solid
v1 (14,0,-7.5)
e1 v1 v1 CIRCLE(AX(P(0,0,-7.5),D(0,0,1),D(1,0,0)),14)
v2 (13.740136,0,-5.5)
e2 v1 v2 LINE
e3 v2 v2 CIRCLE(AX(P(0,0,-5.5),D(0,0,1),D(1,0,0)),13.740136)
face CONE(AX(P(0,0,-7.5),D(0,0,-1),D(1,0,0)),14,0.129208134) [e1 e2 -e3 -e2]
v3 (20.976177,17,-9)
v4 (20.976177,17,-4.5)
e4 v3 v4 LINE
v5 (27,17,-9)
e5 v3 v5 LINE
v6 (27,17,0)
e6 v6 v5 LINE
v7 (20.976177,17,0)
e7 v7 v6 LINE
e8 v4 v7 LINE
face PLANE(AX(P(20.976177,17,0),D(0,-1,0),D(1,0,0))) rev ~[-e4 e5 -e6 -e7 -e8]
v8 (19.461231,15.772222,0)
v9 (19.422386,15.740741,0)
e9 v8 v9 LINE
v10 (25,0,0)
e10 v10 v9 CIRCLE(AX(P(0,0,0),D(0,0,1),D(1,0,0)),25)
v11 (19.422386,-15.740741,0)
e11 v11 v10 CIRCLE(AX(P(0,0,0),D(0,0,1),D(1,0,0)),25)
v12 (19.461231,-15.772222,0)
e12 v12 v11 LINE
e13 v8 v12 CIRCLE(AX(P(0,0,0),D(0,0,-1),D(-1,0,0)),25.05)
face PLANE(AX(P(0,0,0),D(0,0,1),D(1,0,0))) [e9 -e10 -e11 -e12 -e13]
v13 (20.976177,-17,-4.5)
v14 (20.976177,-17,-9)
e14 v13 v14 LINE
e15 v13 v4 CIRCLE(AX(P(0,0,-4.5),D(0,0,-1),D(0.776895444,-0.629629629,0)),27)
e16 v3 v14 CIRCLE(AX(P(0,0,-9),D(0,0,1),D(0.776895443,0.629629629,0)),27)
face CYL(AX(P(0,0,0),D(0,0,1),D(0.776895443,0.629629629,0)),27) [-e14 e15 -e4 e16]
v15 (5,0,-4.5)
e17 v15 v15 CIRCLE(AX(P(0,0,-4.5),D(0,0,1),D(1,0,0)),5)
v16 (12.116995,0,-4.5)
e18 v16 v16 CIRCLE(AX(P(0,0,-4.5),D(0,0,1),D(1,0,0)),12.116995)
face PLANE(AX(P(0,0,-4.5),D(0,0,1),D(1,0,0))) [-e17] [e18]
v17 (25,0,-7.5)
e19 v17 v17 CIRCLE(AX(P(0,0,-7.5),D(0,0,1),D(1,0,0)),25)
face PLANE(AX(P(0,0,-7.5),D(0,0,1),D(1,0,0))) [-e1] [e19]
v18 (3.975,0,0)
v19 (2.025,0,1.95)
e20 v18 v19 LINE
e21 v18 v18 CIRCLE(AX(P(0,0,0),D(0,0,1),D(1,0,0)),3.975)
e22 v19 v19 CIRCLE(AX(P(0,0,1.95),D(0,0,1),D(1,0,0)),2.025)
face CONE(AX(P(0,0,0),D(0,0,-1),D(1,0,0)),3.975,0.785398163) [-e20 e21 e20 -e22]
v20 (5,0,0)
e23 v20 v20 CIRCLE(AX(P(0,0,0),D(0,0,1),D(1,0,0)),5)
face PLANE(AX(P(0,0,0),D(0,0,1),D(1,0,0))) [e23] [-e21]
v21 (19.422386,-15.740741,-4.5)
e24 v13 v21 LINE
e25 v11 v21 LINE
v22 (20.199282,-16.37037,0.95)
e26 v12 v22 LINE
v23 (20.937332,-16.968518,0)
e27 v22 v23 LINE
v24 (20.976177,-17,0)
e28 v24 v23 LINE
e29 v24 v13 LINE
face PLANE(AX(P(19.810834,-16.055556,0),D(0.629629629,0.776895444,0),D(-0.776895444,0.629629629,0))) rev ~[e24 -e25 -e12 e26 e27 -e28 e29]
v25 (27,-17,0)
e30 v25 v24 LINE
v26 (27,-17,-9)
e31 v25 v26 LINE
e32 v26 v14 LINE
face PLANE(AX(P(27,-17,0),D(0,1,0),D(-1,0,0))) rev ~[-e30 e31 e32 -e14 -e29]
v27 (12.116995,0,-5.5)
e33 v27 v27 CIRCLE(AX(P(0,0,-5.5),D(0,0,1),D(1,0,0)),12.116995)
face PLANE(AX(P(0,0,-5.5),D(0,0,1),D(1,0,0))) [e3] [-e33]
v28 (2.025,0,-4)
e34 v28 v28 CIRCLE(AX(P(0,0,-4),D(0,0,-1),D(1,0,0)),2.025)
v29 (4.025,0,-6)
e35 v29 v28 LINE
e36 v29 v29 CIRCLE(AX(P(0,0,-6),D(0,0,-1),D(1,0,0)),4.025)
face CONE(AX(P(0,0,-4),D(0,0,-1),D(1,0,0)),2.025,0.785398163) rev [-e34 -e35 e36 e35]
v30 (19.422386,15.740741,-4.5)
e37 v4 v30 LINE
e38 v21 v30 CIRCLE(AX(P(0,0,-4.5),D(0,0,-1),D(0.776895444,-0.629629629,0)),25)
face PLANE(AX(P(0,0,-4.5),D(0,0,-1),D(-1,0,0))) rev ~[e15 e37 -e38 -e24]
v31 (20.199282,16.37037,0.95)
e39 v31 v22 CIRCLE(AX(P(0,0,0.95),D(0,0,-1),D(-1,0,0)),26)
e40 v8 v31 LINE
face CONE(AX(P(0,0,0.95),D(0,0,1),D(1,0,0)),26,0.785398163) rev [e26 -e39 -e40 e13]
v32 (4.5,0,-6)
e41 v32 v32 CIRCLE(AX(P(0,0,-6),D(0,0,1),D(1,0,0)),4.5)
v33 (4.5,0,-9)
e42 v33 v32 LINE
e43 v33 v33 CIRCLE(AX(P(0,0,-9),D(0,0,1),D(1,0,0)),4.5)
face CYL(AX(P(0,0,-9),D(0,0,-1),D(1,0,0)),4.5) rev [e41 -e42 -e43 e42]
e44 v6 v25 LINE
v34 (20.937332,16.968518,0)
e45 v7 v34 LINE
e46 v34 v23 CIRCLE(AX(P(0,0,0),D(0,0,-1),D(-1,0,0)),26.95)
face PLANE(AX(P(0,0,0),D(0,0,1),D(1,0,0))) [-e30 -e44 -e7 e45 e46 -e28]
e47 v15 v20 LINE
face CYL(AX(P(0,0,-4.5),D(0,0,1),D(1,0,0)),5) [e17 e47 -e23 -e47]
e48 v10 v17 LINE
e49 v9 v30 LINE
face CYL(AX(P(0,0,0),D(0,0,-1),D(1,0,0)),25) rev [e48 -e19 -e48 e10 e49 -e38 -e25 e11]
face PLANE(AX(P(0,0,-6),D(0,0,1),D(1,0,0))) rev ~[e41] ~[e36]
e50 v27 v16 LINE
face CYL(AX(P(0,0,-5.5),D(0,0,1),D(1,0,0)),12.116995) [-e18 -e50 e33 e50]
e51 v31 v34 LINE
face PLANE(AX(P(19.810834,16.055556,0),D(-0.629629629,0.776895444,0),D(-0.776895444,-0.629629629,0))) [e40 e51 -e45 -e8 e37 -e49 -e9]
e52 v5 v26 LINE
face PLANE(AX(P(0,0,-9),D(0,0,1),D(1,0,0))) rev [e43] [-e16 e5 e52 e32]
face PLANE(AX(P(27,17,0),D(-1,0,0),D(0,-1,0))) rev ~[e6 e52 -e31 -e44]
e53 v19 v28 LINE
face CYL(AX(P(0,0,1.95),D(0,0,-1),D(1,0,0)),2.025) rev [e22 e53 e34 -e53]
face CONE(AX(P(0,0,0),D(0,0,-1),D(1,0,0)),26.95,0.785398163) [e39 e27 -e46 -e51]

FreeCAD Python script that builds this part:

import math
import FreeCAD as App
import Part
import Sketcher

V = App.Vector
Q = App.Units.Quantity


def edges_at(feature, points):
    """Names of the edges that pass closest to the given points."""
    edges = feature.Shape.Edges
    near = lambda p: min(range(len(edges)), key=lambda i: edges[i].distToShape(Part.Vertex(*p))[0])
    return sorted({f"Edge{near(p) + 1}" for p in points})

doc = App.newDocument("Part")
body = doc.addObject("PartDesign::Body", "Body")

# Sketch on XZ plane
sketch1 = body.newObject("Sketcher::SketchObject", "Sketch")
sketch1.AttachmentSupport = (doc.getObject("XZ_Plane"), [""])
sketch1.MapMode = "FlatFace"
sketch1.addGeometry(Part.LineSegment(V(70.71, 0, 0), V(26.95, 0, 0)), False)
sketch1.addGeometry(Part.LineSegment(V(26.95, 0, 0), V(26, 0.95, 0)), False)
sketch1.addGeometry(Part.LineSegment(V(26, 0.95, 0), V(25.05, 0, 0)), False)
sketch1.addGeometry(Part.LineSegment(V(25.05, 0, 0), V(25, 0, 0)), False)
sketch1.addGeometry(Part.LineSegment(V(25, 0, 0), V(25, -7.5, 0)), False)
sketch1.addGeometry(Part.LineSegment(V(25, -7.5, 0), V(14, -7.5, 0)), False)
sketch1.addGeometry(Part.LineSegment(V(14, -7.5, 0), V(13.74, -5.5, 0)), False)
sketch1.addGeometry(Part.LineSegment(V(13.74, -5.5, 0), V(12.12, -5.5, 0)), False)
sketch1.addGeometry(Part.LineSegment(V(12.12, -5.5, 0), V(12.12, -4.5, 0)), False)
sketch1.addGeometry(Part.LineSegment(V(12.12, -4.5, 0), V(5, -4.5, 0)), False)
sketch1.addGeometry(Part.LineSegment(V(5, -4.5, 0), V(5, 0, 0)), False)
sketch1.addGeometry(Part.LineSegment(V(5, 0, 0), V(3.98, 0, 0)), False)
sketch1.addGeometry(Part.LineSegment(V(3.98, 0, 0), V(2.02, 1.95, 0)), False)
sketch1.addGeometry(Part.LineSegment(V(2.02, 1.95, 0), V(2.02, -9, 0)), False)
sketch1.addGeometry(Part.LineSegment(V(2.02, -9, 0), V(70.71, -9, 0)), False)
sketch1.addGeometry(Part.LineSegment(V(70.71, -9, 0), V(70.71, 0, 0)), False)
sketch1.addConstraint(Sketcher.Constraint("Coincident", 0, 2, 1, 1))
sketch1.addConstraint(Sketcher.Constraint("Coincident", 1, 2, 2, 1))
sketch1.addConstraint(Sketcher.Constraint("Coincident", 2, 2, 3, 1))
sketch1.addConstraint(Sketcher.Constraint("Coincident", 3, 2, 4, 1))
sketch1.addConstraint(Sketcher.Constraint("Coincident", 4, 2, 5, 1))
sketch1.addConstraint(Sketcher.Constraint("Coincident", 5, 2, 6, 1))
sketch1.addConstraint(Sketcher.Constraint("Coincident", 6, 2, 7, 1))
sketch1.addConstraint(Sketcher.Constraint("Coincident", 7, 2, 8, 1))
sketch1.addConstraint(Sketcher.Constraint("Coincident", 8, 2, 9, 1))
sketch1.addConstraint(Sketcher.Constraint("Coincident", 9, 2, 10, 1))
sketch1.addConstraint(Sketcher.Constraint("Coincident", 10, 2, 11, 1))
sketch1.addConstraint(Sketcher.Constraint("Coincident", 11, 2, 12, 1))
sketch1.addConstraint(Sketcher.Constraint("Coincident", 12, 2, 13, 1))
sketch1.addConstraint(Sketcher.Constraint("Coincident", 13, 2, 14, 1))
sketch1.addConstraint(Sketcher.Constraint("Coincident", 14, 2, 15, 1))
sketch1.addConstraint(Sketcher.Constraint("Coincident", 15, 2, 0, 1))
sketch1.addConstraint(Sketcher.Constraint("Horizontal", 0))
sketch1.addConstraint(Sketcher.Constraint("Horizontal", 3))
sketch1.addConstraint(Sketcher.Constraint("Vertical", 4))
sketch1.addConstraint(Sketcher.Constraint("Horizontal", 5))
sketch1.addConstraint(Sketcher.Constraint("Horizontal", 7))
sketch1.addConstraint(Sketcher.Constraint("Vertical", 8))
sketch1.addConstraint(Sketcher.Constraint("Horizontal", 9))
sketch1.addConstraint(Sketcher.Constraint("Vertical", 10))
sketch1.addConstraint(Sketcher.Constraint("Horizontal", 11))
sketch1.addConstraint(Sketcher.Constraint("Vertical", 13))
sketch1.addConstraint(Sketcher.Constraint("Horizontal", 14))
sketch1.addConstraint(Sketcher.Constraint("Vertical", 15))
sketch1.addConstraint(Sketcher.Constraint("PointOnObject", 0, 2, -1))
sketch1.addConstraint(Sketcher.Constraint("PointOnObject", 2, 2, -1))
sketch1.addConstraint(Sketcher.Constraint("PointOnObject", 10, 2, -1))
sketch1.addConstraint(Sketcher.Constraint("Perpendicular", 1, 2))
sketch1.addConstraint(Sketcher.Constraint("Perpendicular", 2, 12))
sketch1.addConstraint(Sketcher.Constraint("Equal", 1, 2))
sketch1.addConstraint(Sketcher.Constraint("DistanceX", 5, 2, 5, 1, 11.0))
sketch1.addConstraint(Sketcher.Constraint("DistanceY", 8, 1, 8, 2, 1.0))
sketch1.addConstraint(Sketcher.Constraint("DistanceY", 15, 1, 15, 2, 9.0))
sketch1.addConstraint(Sketcher.Constraint("DistanceY", 4, 2, 4, 1, 7.5))
sketch1.addConstraint(Sketcher.Constraint("DistanceY", 10, 1, 10, 2, 4.5))
sketch1.addConstraint(Sketcher.Constraint("DistanceX", -1, 1, 1, 2, 26.0))
sketch1.addConstraint(Sketcher.Constraint("DistanceX", -1, 1, 3, 2, 25.0))
sketch1.addConstraint(Sketcher.Constraint("DistanceX", -1, 1, 9, 2, 5.0))
sketch1.addConstraint(Sketcher.Constraint("DistanceX", 3, 2, 3, 1, 0.05))
sketch1.addConstraint(Sketcher.Constraint("DistanceY", 13, 2, 13, 1, 10.95))
sketch1.addConstraint(Sketcher.Constraint("DistanceX", 11, 2, 11, 1, 1.025))
sketch1.addConstraint(Sketcher.Constraint("DistanceX", 7, 2, 7, 1, 1.623141))
sketch1.addConstraint(Sketcher.Constraint("Distance", 6, 2.016812))
sketch1.addConstraint(Sketcher.Constraint("DistanceX", 0, 2, 0, 1, 43.760678))
revolution = body.newObject("PartDesign::Revolution", "Revolution")
revolution.Profile = sketch1
revolution.ReferenceAxis = (sketch1, ["V_Axis"])
revolution.Angle = 360

# Sketch on XZ plane
sketch2 = body.newObject("Sketcher::SketchObject", "Sketch001")
sketch2.AttachmentSupport = (doc.getObject("XZ_Plane"), [""])
sketch2.MapMode = "FlatFace"
sketch2.addGeometry(Part.LineSegment(V(33.6, 1.9, 0), V(31.6, 1.9, 0)), False)
sketch2.addGeometry(Part.LineSegment(V(31.6, 1.9, 0), V(31.6, 0, 0)), False)
sketch2.addGeometry(Part.LineSegment(V(31.6, 0, 0), V(35.5, 0, 0)), False)
sketch2.addGeometry(Part.LineSegment(V(35.5, 0, 0), V(33.6, 1.9, 0)), False)
sketch2.addGeometry(Part.LineSegment(V(31.6, 1.9, 0), V(31.6, 0, 0)), True)  # axis
sketch2.addConstraint(Sketcher.Constraint("Coincident", 0, 2, 1, 1))
sketch2.addConstraint(Sketcher.Constraint("Coincident", 1, 2, 2, 1))
sketch2.addConstraint(Sketcher.Constraint("Coincident", 2, 2, 3, 1))
sketch2.addConstraint(Sketcher.Constraint("Coincident", 3, 2, 0, 1))
sketch2.addConstraint(Sketcher.Constraint("Horizontal", 0))
sketch2.addConstraint(Sketcher.Constraint("Vertical", 1))
sketch2.addConstraint(Sketcher.Constraint("Horizontal", 2))
sketch2.addConstraint(Sketcher.Constraint("Vertical", 4))
sketch2.addConstraint(Sketcher.Constraint("Coincident", 4, 1, 0, 2))
sketch2.addConstraint(Sketcher.Constraint("PointOnObject", 1, 2, -1))
sketch2.addConstraint(Sketcher.Constraint("PointOnObject", 4, 2, -1))
sketch2.addConstraint(Sketcher.Constraint("DistanceX", 0, 2, 0, 1, 2.0))
sketch2.addConstraint(Sketcher.Constraint("Angle", 3, Q("135 deg")))
sketch2.addConstraint(Sketcher.Constraint("DistanceX", 2, 1, 2, 2, 3.95))
sketch2.addConstraint(Sketcher.Constraint("DistanceX", -1, 1, 0, 2, 31.6))
revolution2 = body.newObject("PartDesign::Revolution", "Revolution001")
revolution2.Profile = sketch2
revolution2.ReferenceAxis = (sketch2, ["Axis0"])
revolution2.Angle = 360

# Sketch on XZ plane
sketch3 = body.newObject("Sketcher::SketchObject", "Sketch002")
sketch3.AttachmentSupport = (doc.getObject("XZ_Plane"), [""])
sketch3.MapMode = "FlatFace"
sketch3.addGeometry(Part.LineSegment(V(42, 1.9, 0), V(42, 0, 0)), False)
sketch3.addGeometry(Part.LineSegment(V(42, 0, 0), V(46, 0, 0)), False)
sketch3.addGeometry(Part.LineSegment(V(46, 0, 0), V(44, 1.9, 0)), False)
sketch3.addGeometry(Part.LineSegment(V(44, 1.9, 0), V(42, 1.9, 0)), False)
sketch3.addGeometry(Part.LineSegment(V(42, 1.9, 0), V(42, 0, 0)), True)  # axis
sketch3.addConstraint(Sketcher.Constraint("Coincident", 0, 2, 1, 1))
sketch3.addConstraint(Sketcher.Constraint("Coincident", 1, 2, 2, 1))
sketch3.addConstraint(Sketcher.Constraint("Coincident", 2, 2, 3, 1))
sketch3.addConstraint(Sketcher.Constraint("Coincident", 3, 2, 0, 1))
sketch3.addConstraint(Sketcher.Constraint("Vertical", 0))
sketch3.addConstraint(Sketcher.Constraint("Horizontal", 1))
sketch3.addConstraint(Sketcher.Constraint("Horizontal", 3))
sketch3.addConstraint(Sketcher.Constraint("Vertical", 4))
sketch3.addConstraint(Sketcher.Constraint("Coincident", 4, 1, 3, 2))
sketch3.addConstraint(Sketcher.Constraint("PointOnObject", 0, 2, -1))
sketch3.addConstraint(Sketcher.Constraint("PointOnObject", 4, 2, -1))
sketch3.addConstraint(Sketcher.Constraint("DistanceX", 3, 2, 3, 1, 2.0))
sketch3.addConstraint(Sketcher.Constraint("Angle", 2, Q("135 deg")))
sketch3.addConstraint(Sketcher.Constraint("DistanceX", -1, 1, 0, 2, 42.0))
sketch3.addConstraint(Sketcher.Constraint("DistanceX", 1, 1, 1, 2, 3.95))
revolution3 = body.newObject("PartDesign::Revolution", "Revolution002")
revolution3.Profile = sketch3
revolution3.ReferenceAxis = (sketch3, ["Axis0"])
revolution3.Angle = 360

# Sketch on XY plane
sketch4 = body.newObject("Sketcher::SketchObject", "Sketch003")
sketch4.AttachmentSupport = (doc.getObject("XY_Plane"), [""])
sketch4.MapMode = "FlatFace"
sketch4.addGeometry(Part.Circle(V(0, 0, 0), V(0, 0, 1), 71), False)
sketch4.addGeometry(Part.ArcOfCircle(Part.Circle(V(0, 0, 0), V(0, 0, 1), 27), math.radians(39), math.radians(321)), False)
sketch4.addGeometry(Part.LineSegment(V(21, 17, 0), V(27, 17, 0)), False)
sketch4.addGeometry(Part.LineSegment(V(27, 17, 0), V(27, -17, 0)), False)
sketch4.addGeometry(Part.LineSegment(V(27, -17, 0), V(21, -17, 0)), False)
sketch4.addConstraint(Sketcher.Constraint("Coincident", 1, 1, 2, 1))
sketch4.addConstraint(Sketcher.Constraint("Coincident", 2, 2, 3, 1))
sketch4.addConstraint(Sketcher.Constraint("Coincident", 3, 2, 4, 1))
sketch4.addConstraint(Sketcher.Constraint("Coincident", 4, 2, 1, 2))
sketch4.addConstraint(Sketcher.Constraint("Horizontal", 2))
sketch4.addConstraint(Sketcher.Constraint("Vertical", 3))
sketch4.addConstraint(Sketcher.Constraint("Horizontal", 4))
sketch4.addConstraint(Sketcher.Constraint("Coincident", 0, 3, -1, 1))
sketch4.addConstraint(Sketcher.Constraint("Coincident", 1, 3, -1, 1))
sketch4.addConstraint(Sketcher.Constraint("Vertical", 1, 1, 4, 2))
sketch4.addConstraint(Sketcher.Constraint("Radius", 1, 27.0))
sketch4.addConstraint(Sketcher.Constraint("DistanceY", 3, 2, 3, 1, 34.0))
sketch4.addConstraint(Sketcher.Constraint("DistanceX", -1, 1, 2, 2, 27.0))
sketch4.addConstraint(Sketcher.Constraint("Diameter", 0, 141.421356))
pocket1 = body.newObject("PartDesign::Pocket", "Pocket")
pocket1.Profile = sketch4
pocket1.Length = 18
pocket1.Midplane = True

# Sketch on XY plane
sketch5 = body.newObject("Sketcher::SketchObject", "Sketch004")
sketch5.AttachmentSupport = (doc.getObject("XY_Plane"), [""])
sketch5.MapMode = "FlatFace"
sketch5.AttachmentOffset = App.Placement(V(0, 0, -9), App.Rotation())
sketch5.addGeometry(Part.Circle(V(0, 0, 0), V(0, 0, 1), 4.5), False)
sketch5.addConstraint(Sketcher.Constraint("Coincident", 0, 3, -1, 1))
sketch5.addConstraint(Sketcher.Constraint("Diameter", 0, 9.0))
pocket2 = body.newObject("PartDesign::Pocket", "Pocket001")
pocket2.Profile = sketch5
pocket2.Length = 3
pocket2.Reversed = True
doc.recompute()

chamfer = body.newObject("PartDesign::Chamfer", "Chamfer")
chamfer.Base = (pocket2, edges_at(pocket2, [(-2.025, 0, -6)]))
chamfer.Size = 2

# Sketch on XZ plane
sketch6 = body.newObject("Sketcher::SketchObject", "Sketch005")
sketch6.AttachmentSupport = (doc.getObject("XZ_Plane"), [""])
sketch6.MapMode = "FlatFace"
sketch6.addGeometry(Part.LineSegment(V(-27, 4.5, 0), V(-27, -4.5, 0)), False)
sketch6.addGeometry(Part.LineSegment(V(-27, -4.5, 0), V(-24, -4.5, 0)), False)
sketch6.addGeometry(Part.LineSegment(V(-24, -4.5, 0), V(-24, 4.5, 0)), False)
sketch6.addGeometry(Part.LineSegment(V(-24, 4.5, 0), V(-27, 4.5, 0)), False)
sketch6.addConstraint(Sketcher.Constraint("Coincident", 0, 2, 1, 1))
sketch6.addConstraint(Sketcher.Constraint("Coincident", 1, 2, 2, 1))
sketch6.addConstraint(Sketcher.Constraint("Coincident", 2, 2, 3, 1))
sketch6.addConstraint(Sketcher.Constraint("Coincident", 3, 2, 0, 1))
sketch6.addConstraint(Sketcher.Constraint("Vertical", 0))
sketch6.addConstraint(Sketcher.Constraint("Horizontal", 1))
sketch6.addConstraint(Sketcher.Constraint("Vertical", 2))
sketch6.addConstraint(Sketcher.Constraint("Horizontal", 3))
sketch6.addConstraint(Sketcher.Constraint("DistanceX", 1, 1, 1, 2, 3.0))
sketch6.addConstraint(Sketcher.Constraint("DistanceY", 0, 2, 0, 1, 9.0))
sketch6.addConstraint(Sketcher.Constraint("DistanceX", 0, 2, -1, 1, 27.0))
sketch6.addConstraint(Sketcher.Constraint("DistanceY", 0, 2, -1, 1, 4.5))
groove = body.newObject("PartDesign::Groove", "Groove")
groove.Profile = sketch6
groove.ReferenceAxis = (sketch6, ["V_Axis"])
groove.Angle = 140.977197

# Sketch on XZ plane
sketch7 = body.newObject("Sketcher::SketchObject", "Sketch006")
sketch7.AttachmentSupport = (doc.getObject("XZ_Plane"), [""])
sketch7.MapMode = "FlatFace"
sketch7.addGeometry(Part.LineSegment(V(-27, 4.5, 0), V(-27, -4.5, 0)), False)
sketch7.addGeometry(Part.LineSegment(V(-27, -4.5, 0), V(-24, -4.5, 0)), False)
sketch7.addGeometry(Part.LineSegment(V(-24, -4.5, 0), V(-24, 4.5, 0)), False)
sketch7.addGeometry(Part.LineSegment(V(-24, 4.5, 0), V(-27, 4.5, 0)), False)
sketch7.addConstraint(Sketcher.Constraint("Coincident", 0, 2, 1, 1))
sketch7.addConstraint(Sketcher.Constraint("Coincident", 1, 2, 2, 1))
sketch7.addConstraint(Sketcher.Constraint("Coincident", 2, 2, 3, 1))
sketch7.addConstraint(Sketcher.Constraint("Coincident", 3, 2, 0, 1))
sketch7.addConstraint(Sketcher.Constraint("Vertical", 0))
sketch7.addConstraint(Sketcher.Constraint("Horizontal", 1))
sketch7.addConstraint(Sketcher.Constraint("Vertical", 2))
sketch7.addConstraint(Sketcher.Constraint("Horizontal", 3))
sketch7.addConstraint(Sketcher.Constraint("DistanceX", 1, 1, 1, 2, 3.0))
sketch7.addConstraint(Sketcher.Constraint("DistanceY", 0, 2, 0, 1, 9.0))
sketch7.addConstraint(Sketcher.Constraint("DistanceX", 0, 2, -1, 1, 27.0))
sketch7.addConstraint(Sketcher.Constraint("DistanceY", 0, 2, -1, 1, 4.5))
groove2 = body.newObject("PartDesign::Groove", "Groove001")
groove2.Profile = sketch7
groove2.ReferenceAxis = (sketch7, ["V_Axis"])
groove2.Angle = 140.977197
groove2.Reversed = True

# Sketch on XZ plane
sketch8 = body.newObject("Sketcher::SketchObject", "Sketch007")
sketch8.AttachmentSupport = (doc.getObject("XZ_Plane"), [""])
sketch8.MapMode = "FlatFace"
sketch8.addGeometry(Part.LineSegment(V(44, -7, 0), V(42, -7, 0)), False)
sketch8.addGeometry(Part.LineSegment(V(42, -7, 0), V(42, -9, 0)), False)
sketch8.addGeometry(Part.LineSegment(V(42, -9, 0), V(46, -9, 0)), False)
sketch8.addGeometry(Part.LineSegment(V(46, -9, 0), V(44, -7, 0)), False)
sketch8.addGeometry(Part.LineSegment(V(42, -7, 0), V(42, -9, 0)), True)  # axis
sketch8.addConstraint(Sketcher.Constraint("Coincident", 0, 2, 1, 1))
sketch8.addConstraint(Sketcher.Constraint("Coincident", 1, 2, 2, 1))
sketch8.addConstraint(Sketcher.Constraint("Coincident", 2, 2, 3, 1))
sketch8.addConstraint(Sketcher.Constraint("Coincident", 3, 2, 0, 1))
sketch8.addConstraint(Sketcher.Constraint("Horizontal", 0))
sketch8.addConstraint(Sketcher.Constraint("Vertical", 1))
sketch8.addConstraint(Sketcher.Constraint("Horizontal", 2))
sketch8.addConstraint(Sketcher.Constraint("Vertical", 4))
sketch8.addConstraint(Sketcher.Constraint("Coincident", 4, 1, 0, 2))
sketch8.addConstraint(Sketcher.Constraint("Horizontal", 2, 2, 4, 2))
sketch8.addConstraint(Sketcher.Constraint("Equal", 0, 1))
sketch8.addConstraint(Sketcher.Constraint("DistanceX", 0, 2, 0, 1, 2.0))
sketch8.addConstraint(Sketcher.Constraint("DistanceX", 2, 1, 2, 2, 4.0))
sketch8.addConstraint(Sketcher.Constraint("DistanceX", -1, 1, 0, 2, 42.0))
sketch8.addConstraint(Sketcher.Constraint("DistanceY", 0, 2, -1, 1, 7.0))
groove3 = body.newObject("PartDesign::Groove", "Groove002")
groove3.Profile = sketch8
groove3.ReferenceAxis = (sketch8, ["Axis0"])
groove3.Angle = 360

# Sketch on XZ plane
sketch9 = body.newObject("Sketcher::SketchObject", "Sketch008")
sketch9.AttachmentSupport = (doc.getObject("XZ_Plane"), [""])
sketch9.MapMode = "FlatFace"
sketch9.addGeometry(Part.LineSegment(V(33.6, -7, 0), V(31.6, -7, 0)), False)
sketch9.addGeometry(Part.LineSegment(V(31.6, -7, 0), V(31.6, -9, 0)), False)
sketch9.addGeometry(Part.LineSegment(V(31.6, -9, 0), V(35.6, -9, 0)), False)
sketch9.addGeometry(Part.LineSegment(V(35.6, -9, 0), V(33.6, -7, 0)), False)
sketch9.addGeometry(Part.LineSegment(V(31.6, -7, 0), V(31.6, -9, 0)), True)  # axis
sketch9.addConstraint(Sketcher.Constraint("Coincident", 0, 2, 1, 1))
sketch9.addConstraint(Sketcher.Constraint("Coincident", 1, 2, 2, 1))
sketch9.addConstraint(Sketcher.Constraint("Coincident", 2, 2, 3, 1))
sketch9.addConstraint(Sketcher.Constraint("Coincident", 3, 2, 0, 1))
sketch9.addConstraint(Sketcher.Constraint("Horizontal", 0))
sketch9.addConstraint(Sketcher.Constraint("Vertical", 1))
sketch9.addConstraint(Sketcher.Constraint("Horizontal", 2))
sketch9.addConstraint(Sketcher.Constraint("Vertical", 4))
sketch9.addConstraint(Sketcher.Constraint("Coincident", 4, 1, 0, 2))
sketch9.addConstraint(Sketcher.Constraint("Horizontal", 2, 2, 4, 2))
sketch9.addConstraint(Sketcher.Constraint("Equal", 0, 1))
sketch9.addConstraint(Sketcher.Constraint("DistanceX", 0, 2, 0, 1, 2.0))
sketch9.addConstraint(Sketcher.Constraint("DistanceX", 2, 1, 2, 2, 4.0))
sketch9.addConstraint(Sketcher.Constraint("DistanceY", 0, 2, -1, 1, 7.0))
sketch9.addConstraint(Sketcher.Constraint("DistanceX", -1, 1, 0, 2, 31.6))
groove4 = body.newObject("PartDesign::Groove", "Groove003")
groove4.Profile = sketch9
groove4.ReferenceAxis = (sketch9, ["Axis0"])
groove4.Angle = 360

doc.recompute()
